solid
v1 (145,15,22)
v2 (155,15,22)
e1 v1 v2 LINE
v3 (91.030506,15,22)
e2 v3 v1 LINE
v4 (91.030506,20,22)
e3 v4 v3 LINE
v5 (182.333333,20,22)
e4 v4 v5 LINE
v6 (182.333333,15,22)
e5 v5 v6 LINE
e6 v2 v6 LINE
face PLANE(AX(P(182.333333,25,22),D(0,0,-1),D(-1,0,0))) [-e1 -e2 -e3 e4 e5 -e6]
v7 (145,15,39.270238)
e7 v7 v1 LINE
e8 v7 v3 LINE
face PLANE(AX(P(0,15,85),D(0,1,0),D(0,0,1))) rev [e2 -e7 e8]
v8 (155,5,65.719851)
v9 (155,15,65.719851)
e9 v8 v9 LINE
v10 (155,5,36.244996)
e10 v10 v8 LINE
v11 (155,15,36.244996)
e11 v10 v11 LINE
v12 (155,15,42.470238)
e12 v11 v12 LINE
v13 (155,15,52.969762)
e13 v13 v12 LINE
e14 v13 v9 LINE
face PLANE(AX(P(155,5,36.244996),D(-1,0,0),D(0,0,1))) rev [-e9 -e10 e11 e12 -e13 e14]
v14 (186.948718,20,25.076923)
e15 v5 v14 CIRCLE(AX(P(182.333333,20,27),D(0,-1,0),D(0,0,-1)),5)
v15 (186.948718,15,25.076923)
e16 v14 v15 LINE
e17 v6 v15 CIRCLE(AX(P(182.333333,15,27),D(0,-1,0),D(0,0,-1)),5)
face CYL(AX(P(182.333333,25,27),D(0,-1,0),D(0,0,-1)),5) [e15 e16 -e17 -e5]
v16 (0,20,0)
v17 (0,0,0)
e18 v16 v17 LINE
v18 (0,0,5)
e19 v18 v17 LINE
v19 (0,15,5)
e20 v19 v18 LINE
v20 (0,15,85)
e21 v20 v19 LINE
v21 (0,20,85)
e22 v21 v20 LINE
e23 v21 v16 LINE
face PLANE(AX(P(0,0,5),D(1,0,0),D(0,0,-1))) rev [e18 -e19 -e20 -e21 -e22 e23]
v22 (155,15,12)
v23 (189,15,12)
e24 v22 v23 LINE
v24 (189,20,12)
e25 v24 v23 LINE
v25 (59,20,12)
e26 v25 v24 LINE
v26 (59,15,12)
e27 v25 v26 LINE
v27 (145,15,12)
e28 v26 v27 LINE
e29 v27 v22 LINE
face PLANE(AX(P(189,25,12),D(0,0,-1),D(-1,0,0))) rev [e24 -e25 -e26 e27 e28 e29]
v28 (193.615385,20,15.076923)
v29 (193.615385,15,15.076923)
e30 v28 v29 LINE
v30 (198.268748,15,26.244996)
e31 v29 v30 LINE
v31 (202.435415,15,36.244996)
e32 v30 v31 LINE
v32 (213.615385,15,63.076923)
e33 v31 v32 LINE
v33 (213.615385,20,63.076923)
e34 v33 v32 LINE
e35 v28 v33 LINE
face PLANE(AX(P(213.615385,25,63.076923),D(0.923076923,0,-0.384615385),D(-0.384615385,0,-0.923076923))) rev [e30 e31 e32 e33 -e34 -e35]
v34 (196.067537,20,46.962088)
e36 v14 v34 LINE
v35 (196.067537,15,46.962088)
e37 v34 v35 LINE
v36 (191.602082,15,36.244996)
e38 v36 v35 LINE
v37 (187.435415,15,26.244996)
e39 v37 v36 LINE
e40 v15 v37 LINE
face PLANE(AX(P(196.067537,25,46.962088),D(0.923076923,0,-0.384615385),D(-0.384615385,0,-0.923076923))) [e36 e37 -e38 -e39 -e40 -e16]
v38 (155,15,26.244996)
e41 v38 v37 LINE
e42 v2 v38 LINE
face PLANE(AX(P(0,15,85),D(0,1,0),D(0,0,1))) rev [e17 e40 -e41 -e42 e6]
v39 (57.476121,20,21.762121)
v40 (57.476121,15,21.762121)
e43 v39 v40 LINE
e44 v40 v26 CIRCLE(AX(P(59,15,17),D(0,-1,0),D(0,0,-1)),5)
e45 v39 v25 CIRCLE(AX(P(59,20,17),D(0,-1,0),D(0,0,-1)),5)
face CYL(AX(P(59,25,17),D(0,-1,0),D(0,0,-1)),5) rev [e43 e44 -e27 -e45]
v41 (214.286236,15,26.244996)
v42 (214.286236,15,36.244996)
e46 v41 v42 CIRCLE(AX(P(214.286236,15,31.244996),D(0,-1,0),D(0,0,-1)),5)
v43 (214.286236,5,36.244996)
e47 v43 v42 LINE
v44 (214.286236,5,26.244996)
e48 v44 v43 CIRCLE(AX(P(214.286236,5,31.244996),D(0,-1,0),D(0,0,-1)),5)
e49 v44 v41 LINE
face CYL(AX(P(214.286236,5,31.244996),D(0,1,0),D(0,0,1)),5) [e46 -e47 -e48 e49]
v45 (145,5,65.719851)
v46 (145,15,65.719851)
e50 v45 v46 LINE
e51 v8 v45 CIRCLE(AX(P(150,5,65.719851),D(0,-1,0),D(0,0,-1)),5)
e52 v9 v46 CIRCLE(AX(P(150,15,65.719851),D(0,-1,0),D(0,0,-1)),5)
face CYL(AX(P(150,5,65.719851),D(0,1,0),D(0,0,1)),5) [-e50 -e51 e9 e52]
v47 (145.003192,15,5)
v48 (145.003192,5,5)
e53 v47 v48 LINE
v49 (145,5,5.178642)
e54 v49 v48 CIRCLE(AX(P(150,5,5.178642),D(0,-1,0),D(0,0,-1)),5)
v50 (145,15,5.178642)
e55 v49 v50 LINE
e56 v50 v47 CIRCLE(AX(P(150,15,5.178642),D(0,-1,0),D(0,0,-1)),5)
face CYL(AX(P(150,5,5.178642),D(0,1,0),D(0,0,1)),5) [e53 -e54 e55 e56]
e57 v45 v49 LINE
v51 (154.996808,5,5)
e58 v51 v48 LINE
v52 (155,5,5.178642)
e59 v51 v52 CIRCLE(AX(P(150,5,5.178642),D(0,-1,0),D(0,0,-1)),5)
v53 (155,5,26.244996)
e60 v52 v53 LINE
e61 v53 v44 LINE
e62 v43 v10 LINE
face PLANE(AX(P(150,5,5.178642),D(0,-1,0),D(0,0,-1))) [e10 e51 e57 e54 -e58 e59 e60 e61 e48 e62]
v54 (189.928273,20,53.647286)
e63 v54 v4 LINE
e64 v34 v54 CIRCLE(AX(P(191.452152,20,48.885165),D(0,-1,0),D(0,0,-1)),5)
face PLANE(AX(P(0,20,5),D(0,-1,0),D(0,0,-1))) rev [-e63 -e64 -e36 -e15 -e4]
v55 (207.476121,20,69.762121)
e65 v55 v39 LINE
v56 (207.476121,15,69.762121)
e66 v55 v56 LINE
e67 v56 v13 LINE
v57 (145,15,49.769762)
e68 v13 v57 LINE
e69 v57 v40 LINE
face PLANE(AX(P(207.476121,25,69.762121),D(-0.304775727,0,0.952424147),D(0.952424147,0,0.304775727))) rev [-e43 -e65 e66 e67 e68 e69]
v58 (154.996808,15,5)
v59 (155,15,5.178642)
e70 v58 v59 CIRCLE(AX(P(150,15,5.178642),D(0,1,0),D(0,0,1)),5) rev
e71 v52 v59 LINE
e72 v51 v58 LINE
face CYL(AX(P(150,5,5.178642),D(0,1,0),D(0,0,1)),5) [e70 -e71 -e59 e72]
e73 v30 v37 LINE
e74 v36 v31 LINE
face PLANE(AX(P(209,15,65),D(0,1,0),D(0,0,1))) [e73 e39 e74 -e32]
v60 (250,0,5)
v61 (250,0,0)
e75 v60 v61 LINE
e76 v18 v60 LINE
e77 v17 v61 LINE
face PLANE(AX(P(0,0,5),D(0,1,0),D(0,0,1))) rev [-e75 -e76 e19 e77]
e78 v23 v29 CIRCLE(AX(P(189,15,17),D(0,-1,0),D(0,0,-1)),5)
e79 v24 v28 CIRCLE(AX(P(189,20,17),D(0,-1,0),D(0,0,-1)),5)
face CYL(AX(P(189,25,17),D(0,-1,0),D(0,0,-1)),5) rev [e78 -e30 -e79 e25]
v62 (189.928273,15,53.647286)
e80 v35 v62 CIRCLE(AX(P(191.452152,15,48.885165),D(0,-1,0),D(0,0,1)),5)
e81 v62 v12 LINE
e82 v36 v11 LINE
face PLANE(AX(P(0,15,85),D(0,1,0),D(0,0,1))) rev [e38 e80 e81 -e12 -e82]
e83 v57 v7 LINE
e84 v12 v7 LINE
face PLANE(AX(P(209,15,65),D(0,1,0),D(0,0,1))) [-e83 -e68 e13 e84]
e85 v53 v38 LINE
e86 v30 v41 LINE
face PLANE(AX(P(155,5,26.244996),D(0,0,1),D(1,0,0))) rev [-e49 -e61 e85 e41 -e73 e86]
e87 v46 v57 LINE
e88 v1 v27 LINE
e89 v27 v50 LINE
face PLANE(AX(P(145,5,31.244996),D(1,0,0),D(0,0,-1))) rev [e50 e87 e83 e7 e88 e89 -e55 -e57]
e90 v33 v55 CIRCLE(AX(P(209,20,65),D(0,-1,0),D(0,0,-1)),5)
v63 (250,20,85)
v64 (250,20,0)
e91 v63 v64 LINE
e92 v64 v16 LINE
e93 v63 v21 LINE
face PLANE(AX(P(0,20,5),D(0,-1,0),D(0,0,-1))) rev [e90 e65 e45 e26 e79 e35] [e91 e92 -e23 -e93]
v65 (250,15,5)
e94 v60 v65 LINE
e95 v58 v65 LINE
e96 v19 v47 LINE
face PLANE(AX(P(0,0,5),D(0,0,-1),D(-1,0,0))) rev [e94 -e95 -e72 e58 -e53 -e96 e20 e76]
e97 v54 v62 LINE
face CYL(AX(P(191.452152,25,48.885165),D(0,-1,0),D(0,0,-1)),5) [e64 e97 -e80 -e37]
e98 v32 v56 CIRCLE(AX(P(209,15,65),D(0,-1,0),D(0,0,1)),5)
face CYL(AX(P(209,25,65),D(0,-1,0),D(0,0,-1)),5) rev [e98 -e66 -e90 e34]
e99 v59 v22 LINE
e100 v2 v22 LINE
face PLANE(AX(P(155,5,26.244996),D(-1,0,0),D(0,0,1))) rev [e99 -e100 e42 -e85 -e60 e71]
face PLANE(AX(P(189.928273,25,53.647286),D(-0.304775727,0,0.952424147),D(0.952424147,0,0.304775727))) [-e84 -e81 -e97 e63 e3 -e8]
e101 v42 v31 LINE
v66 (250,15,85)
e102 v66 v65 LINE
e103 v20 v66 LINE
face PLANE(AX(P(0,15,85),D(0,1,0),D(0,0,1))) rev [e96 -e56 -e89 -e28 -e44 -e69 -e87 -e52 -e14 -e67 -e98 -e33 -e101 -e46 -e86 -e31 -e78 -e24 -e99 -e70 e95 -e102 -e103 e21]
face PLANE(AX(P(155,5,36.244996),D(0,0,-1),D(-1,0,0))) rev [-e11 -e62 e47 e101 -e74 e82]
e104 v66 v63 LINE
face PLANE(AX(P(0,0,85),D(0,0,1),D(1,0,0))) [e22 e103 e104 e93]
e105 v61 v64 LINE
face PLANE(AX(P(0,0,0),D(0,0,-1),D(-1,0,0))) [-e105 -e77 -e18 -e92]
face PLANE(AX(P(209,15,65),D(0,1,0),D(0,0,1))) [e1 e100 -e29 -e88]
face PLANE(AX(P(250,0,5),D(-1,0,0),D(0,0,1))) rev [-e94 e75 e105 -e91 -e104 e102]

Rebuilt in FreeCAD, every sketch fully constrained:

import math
import FreeCAD as App
import Part
import Sketcher
Q = App.Units.Quantity

doc = App.newDocument("Part")
body = doc.addObject("PartDesign::Body", "Body")

# Sketch on XY plane
sketch1 = body.newObject("Sketcher::SketchObject", "Sketch")
sketch1.AttachmentSupport = (doc.getObject("XY_Plane"), [""])
sketch1.MapMode = "FlatFace"
sketch1.addGeometry(Part.LineSegment(App.Vector(0, 20, 0), App.Vector(0, 0, 0)), False)
sketch1.addGeometry(Part.LineSegment(App.Vector(0, 0, 0), App.Vector(250, 0, 0)), False)
sketch1.addGeometry(Part.LineSegment(App.Vector(250, 0, 0), App.Vector(250, 20, 0)), False)
sketch1.addGeometry(Part.LineSegment(App.Vector(250, 20, 0), App.Vector(0, 20, 0)), False)
sketch1.addConstraint(Sketcher.Constraint("Coincident", 0, 2, 1, 1))
sketch1.addConstraint(Sketcher.Constraint("Coincident", 1, 2, 2, 1))
sketch1.addConstraint(Sketcher.Constraint("Coincident", 2, 2, 3, 1))
sketch1.addConstraint(Sketcher.Constraint("Coincident", 3, 2, 0, 1))
sketch1.addConstraint(Sketcher.Constraint("Vertical", 0))
sketch1.addConstraint(Sketcher.Constraint("Horizontal", 1))
sketch1.addConstraint(Sketcher.Constraint("Vertical", 2))
sketch1.addConstraint(Sketcher.Constraint("Horizontal", 3))
sketch1.addConstraint(Sketcher.Constraint("Coincident", 0, 2, -1, 1))
sketch1.addConstraint(Sketcher.Constraint("DistanceX", 1, 1, 1, 2, Q("250 mm")))
sketch1.addConstraint(Sketcher.Constraint("DistanceY", 0, 2, 0, 1, Q("20 mm")))
pad1 = body.newObject("PartDesign::Pad", "Pad")
pad1.Profile = sketch1
pad1.Length = 5

# Sketch on XY plane
sketch2 = body.newObject("Sketcher::SketchObject", "Sketch001")
sketch2.AttachmentSupport = (doc.getObject("XY_Plane"), [""])
sketch2.MapMode = "FlatFace"
sketch2.AttachmentOffset = App.Placement(App.Vector(0, 0, 5), App.Rotation())
sketch2.addGeometry(Part.LineSegment(App.Vector(0, 20, 0), App.Vector(0, 15, 0)), False)
sketch2.addGeometry(Part.LineSegment(App.Vector(0, 15, 0), App.Vector(250, 15, 0)), False)
sketch2.addGeometry(Part.LineSegment(App.Vector(250, 15, 0), App.Vector(250, 20, 0)), False)
sketch2.addGeometry(Part.LineSegment(App.Vector(250, 20, 0), App.Vector(0, 20, 0)), False)
sketch2.addConstraint(Sketcher.Constraint("Coincident", 0, 2, 1, 1))
sketch2.addConstraint(Sketcher.Constraint("Coincident", 1, 2, 2, 1))
sketch2.addConstraint(Sketcher.Constraint("Coincident", 2, 2, 3, 1))
sketch2.addConstraint(Sketcher.Constraint("Coincident", 3, 2, 0, 1))
sketch2.addConstraint(Sketcher.Constraint("Vertical", 0))
sketch2.addConstraint(Sketcher.Constraint("Horizontal", 1))
sketch2.addConstraint(Sketcher.Constraint("Vertical", 2))
sketch2.addConstraint(Sketcher.Constraint("Horizontal", 3))
sketch2.addConstraint(Sketcher.Constraint("PointOnObject", 0, 2, -2))
sketch2.addConstraint(Sketcher.Constraint("DistanceX", 1, 1, 1, 2, Q("250 mm")))
sketch2.addConstraint(Sketcher.Constraint("DistanceY", 0, 2, 0, 1, Q("5 mm")))
sketch2.addConstraint(Sketcher.Constraint("DistanceY", -1, 1, 0, 2, Q("15 mm")))
pad2 = body.newObject("PartDesign::Pad", "Pad001")
pad2.Profile = sketch2
pad2.Length = 80

# Sketch on XZ plane
sketch3 = body.newObject("Sketcher::SketchObject", "Sketch002")
sketch3.AttachmentSupport = (doc.getObject("XZ_Plane"), [""])
sketch3.MapMode = "FlatFace"
sketch3.AttachmentOffset = App.Placement(App.Vector(0, 0, -15), App.Rotation())
sketch3.addGeometry(Part.ArcOfCircle(Part.Circle(App.Vector(150, 65.719851, 0), App.Vector(0, 0, 1), 5), math.radians(0), math.radians(180)), False)
sketch3.addGeometry(Part.LineSegment(App.Vector(145, 65.719851, 0), App.Vector(145, 5.178642, 0)), False)
sketch3.addGeometry(Part.ArcOfCircle(Part.Circle(App.Vector(150, 5.178642, 0), App.Vector(0, 0, 1), 5), math.radians(180), math.radians(360)), False)
sketch3.addGeometry(Part.LineSegment(App.Vector(155, 5.178642, 0), App.Vector(155, 26.244996, 0)), False)
sketch3.addGeometry(Part.LineSegment(App.Vector(155, 26.244996, 0), App.Vector(214.286236, 26.244996, 0)), False)
sketch3.addGeometry(Part.ArcOfCircle(Part.Circle(App.Vector(214.286236, 31.244996, 0), App.Vector(0, 0, 1), 5), math.radians(-90), math.radians(90)), False)
sketch3.addGeometry(Part.LineSegment(App.Vector(214.286236, 36.244996, 0), App.Vector(155, 36.244996, 0)), False)
sketch3.addGeometry(Part.LineSegment(App.Vector(155, 36.244996, 0), App.Vector(155, 65.719851, 0)), False)
sketch3.addConstraint(Sketcher.Constraint("Tangent", 0, 2, 1, 1))
sketch3.addConstraint(Sketcher.Constraint("Tangent", 1, 2, 2, 1))
sketch3.addConstraint(Sketcher.Constraint("Tangent", 2, 2, 3, 1))
sketch3.addConstraint(Sketcher.Constraint("Coincident", 3, 2, 4, 1))
sketch3.addConstraint(Sketcher.Constraint("Tangent", 4, 2, 5, 1))
sketch3.addConstraint(Sketcher.Constraint("Tangent", 5, 2, 6, 1))
sketch3.addConstraint(Sketcher.Constraint("Coincident", 6, 2, 7, 1))
sketch3.addConstraint(Sketcher.Constraint("Tangent", 7, 2, 0, 1))
sketch3.addConstraint(Sketcher.Constraint("Vertical", 1))
sketch3.addConstraint(Sketcher.Constraint("Vertical", 3))
sketch3.addConstraint(Sketcher.Constraint("Horizontal", 4))
sketch3.addConstraint(Sketcher.Constraint("Horizontal", 6))
sketch3.addConstraint(Sketcher.Constraint("Vertical", 7))
sketch3.addConstraint(Sketcher.Constraint("Equal", 0, 2))
sketch3.addConstraint(Sketcher.Constraint("Equal", 2, 5))
sketch3.addConstraint(Sketcher.Constraint("Radius", 0, Q("5 mm")))
sketch3.addConstraint(Sketcher.Constraint("DistanceX", -1, 1, 0, 3, Q("150 mm")))
sketch3.addConstraint(Sketcher.Constraint("DistanceY", 1, 2, 1, 1, Q("60.541209 mm")))
sketch3.addConstraint(Sketcher.Constraint("DistanceX", 4, 1, 4, 2, Q("59.286236 mm")))
sketch3.addConstraint(Sketcher.Constraint("DistanceY", 3, 1, 3, 2, Q("21.066354 mm")))
sketch3.addConstraint(Sketcher.Constraint("DistanceY", -1, 1, 0, 3, Q("65.719851 mm")))
pad3 = body.newObject("PartDesign::Pad", "Pad002")
pad3.Profile = sketch3
pad3.Length = 10

# Sketch on XZ plane
sketch4 = body.newObject("Sketcher::SketchObject", "Sketch003")
sketch4.AttachmentSupport = (doc.getObject("XZ_Plane"), [""])
sketch4.MapMode = "FlatFace"
sketch4.AttachmentOffset = App.Placement(App.Vector(0, 0, -15), App.Rotation())
sketch4.addGeometry(Part.LineSegment(App.Vector(207.476121, 69.762121, 0), App.Vector(57.476121, 21.762121, 0)), False)
sketch4.addGeometry(Part.ArcOfCircle(Part.Circle(App.Vector(59, 17, 0), App.Vector(0, 0, 1), 5), math.radians(107.744672), math.radians(270)), False)
sketch4.addGeometry(Part.LineSegment(App.Vector(59, 12, 0), App.Vector(189, 12, 0)), False)
sketch4.addGeometry(Part.ArcOfCircle(Part.Circle(App.Vector(189, 17, 0), App.Vector(0, 0, 1), 5), math.radians(-90), math.radians(-22.619865)), False)
sketch4.addGeometry(Part.LineSegment(App.Vector(193.615385, 15.076923, 0), App.Vector(213.615385, 63.076923, 0)), False)
sketch4.addGeometry(Part.ArcOfCircle(Part.Circle(App.Vector(209, 65, 0), App.Vector(0, 0, 1), 5), math.radians(-22.619865), math.radians(107.744672)), False)
sketch4.addGeometry(Part.LineSegment(App.Vector(91.030506, 22, 0), App.Vector(189.928273, 53.647286, 0)), False)
sketch4.addGeometry(Part.ArcOfCircle(Part.Circle(App.Vector(191.452152, 48.885165, 0), App.Vector(0, 0, 1), 5), math.radians(-22.619865), math.radians(107.744672)), False)
sketch4.addGeometry(Part.LineSegment(App.Vector(196.067537, 46.962088, 0), App.Vector(186.948718, 25.076923, 0)), False)
sketch4.addGeometry(Part.ArcOfCircle(Part.Circle(App.Vector(182.333333, 27, 0), App.Vector(0, 0, 1), 5), math.radians(-90), math.radians(-22.619865)), False)
sketch4.addGeometry(Part.LineSegment(App.Vector(182.333333, 22, 0), App.Vector(91.030506, 22, 0)), False)
sketch4.addConstraint(Sketcher.Constraint("Tangent", 0, 2, 1, 1))
sketch4.addConstraint(Sketcher.Constraint("Tangent", 1, 2, 2, 1))
sketch4.addConstraint(Sketcher.Constraint("Tangent", 2, 2, 3, 1))
sketch4.addConstraint(Sketcher.Constraint("Tangent", 3, 2, 4, 1))
sketch4.addConstraint(Sketcher.Constraint("Tangent", 4, 2, 5, 1))
sketch4.addConstraint(Sketcher.Constraint("Tangent", 5, 2, 0, 1))
sketch4.addConstraint(Sketcher.Constraint("Tangent", 6, 2, 7, 2))
sketch4.addConstraint(Sketcher.Constraint("Tangent", 7, 1, 8, 1))
sketch4.addConstraint(Sketcher.Constraint("Tangent", 8, 2, 9, 2))
sketch4.addConstraint(Sketcher.Constraint("Tangent", 9, 1, 10, 1))
sketch4.addConstraint(Sketcher.Constraint("Coincident", 10, 2, 6, 1))
sketch4.addConstraint(Sketcher.Constraint("Horizontal", 2))
sketch4.addConstraint(Sketcher.Constraint("Horizontal", 10))
sketch4.addConstraint(Sketcher.Constraint("Equal", 1, 3))
sketch4.addConstraint(Sketcher.Constraint("Equal", 3, 5))
sketch4.addConstraint(Sketcher.Constraint("Equal", 5, 7))
sketch4.addConstraint(Sketcher.Constraint("Equal", 7, 9))
sketch4.addConstraint(Sketcher.Constraint("Parallel", 0, 6))
sketch4.addConstraint(Sketcher.Constraint("Parallel", 4, 8))
sketch4.addConstraint(Sketcher.Constraint("Radius", 1, Q("5 mm")))
sketch4.addConstraint(Sketcher.Constraint("DistanceX", 2, 1, 2, 2, Q("130 mm")))
sketch4.addConstraint(Sketcher.Constraint("Distance", 4, Q("52 mm")))
sketch4.addConstraint(Sketcher.Constraint("DistanceX", -1, 1, 1, 3, Q("59 mm")))
sketch4.addConstraint(Sketcher.Constraint("DistanceY", -1, 1, 1, 3, Q("17 mm")))
sketch4.addConstraint(Sketcher.Constraint("DistanceX", -1, 1, 5, 3, Q("209 mm")))
sketch4.addConstraint(Sketcher.Constraint("DistanceY", -1, 1, 9, 3, Q("27 mm")))
sketch4.addConstraint(Sketcher.Constraint("Distance", 8, Q("23.708929 mm")))
sketch4.addConstraint(Sketcher.Constraint("DistanceX", 0, 2, 9, 3, Q("124.857212 mm")))
pocket1 = body.newObject("PartDesign::Pocket", "Pocket")
pocket1.Profile = sketch4
pocket1.Length = 10

doc.recompute()
